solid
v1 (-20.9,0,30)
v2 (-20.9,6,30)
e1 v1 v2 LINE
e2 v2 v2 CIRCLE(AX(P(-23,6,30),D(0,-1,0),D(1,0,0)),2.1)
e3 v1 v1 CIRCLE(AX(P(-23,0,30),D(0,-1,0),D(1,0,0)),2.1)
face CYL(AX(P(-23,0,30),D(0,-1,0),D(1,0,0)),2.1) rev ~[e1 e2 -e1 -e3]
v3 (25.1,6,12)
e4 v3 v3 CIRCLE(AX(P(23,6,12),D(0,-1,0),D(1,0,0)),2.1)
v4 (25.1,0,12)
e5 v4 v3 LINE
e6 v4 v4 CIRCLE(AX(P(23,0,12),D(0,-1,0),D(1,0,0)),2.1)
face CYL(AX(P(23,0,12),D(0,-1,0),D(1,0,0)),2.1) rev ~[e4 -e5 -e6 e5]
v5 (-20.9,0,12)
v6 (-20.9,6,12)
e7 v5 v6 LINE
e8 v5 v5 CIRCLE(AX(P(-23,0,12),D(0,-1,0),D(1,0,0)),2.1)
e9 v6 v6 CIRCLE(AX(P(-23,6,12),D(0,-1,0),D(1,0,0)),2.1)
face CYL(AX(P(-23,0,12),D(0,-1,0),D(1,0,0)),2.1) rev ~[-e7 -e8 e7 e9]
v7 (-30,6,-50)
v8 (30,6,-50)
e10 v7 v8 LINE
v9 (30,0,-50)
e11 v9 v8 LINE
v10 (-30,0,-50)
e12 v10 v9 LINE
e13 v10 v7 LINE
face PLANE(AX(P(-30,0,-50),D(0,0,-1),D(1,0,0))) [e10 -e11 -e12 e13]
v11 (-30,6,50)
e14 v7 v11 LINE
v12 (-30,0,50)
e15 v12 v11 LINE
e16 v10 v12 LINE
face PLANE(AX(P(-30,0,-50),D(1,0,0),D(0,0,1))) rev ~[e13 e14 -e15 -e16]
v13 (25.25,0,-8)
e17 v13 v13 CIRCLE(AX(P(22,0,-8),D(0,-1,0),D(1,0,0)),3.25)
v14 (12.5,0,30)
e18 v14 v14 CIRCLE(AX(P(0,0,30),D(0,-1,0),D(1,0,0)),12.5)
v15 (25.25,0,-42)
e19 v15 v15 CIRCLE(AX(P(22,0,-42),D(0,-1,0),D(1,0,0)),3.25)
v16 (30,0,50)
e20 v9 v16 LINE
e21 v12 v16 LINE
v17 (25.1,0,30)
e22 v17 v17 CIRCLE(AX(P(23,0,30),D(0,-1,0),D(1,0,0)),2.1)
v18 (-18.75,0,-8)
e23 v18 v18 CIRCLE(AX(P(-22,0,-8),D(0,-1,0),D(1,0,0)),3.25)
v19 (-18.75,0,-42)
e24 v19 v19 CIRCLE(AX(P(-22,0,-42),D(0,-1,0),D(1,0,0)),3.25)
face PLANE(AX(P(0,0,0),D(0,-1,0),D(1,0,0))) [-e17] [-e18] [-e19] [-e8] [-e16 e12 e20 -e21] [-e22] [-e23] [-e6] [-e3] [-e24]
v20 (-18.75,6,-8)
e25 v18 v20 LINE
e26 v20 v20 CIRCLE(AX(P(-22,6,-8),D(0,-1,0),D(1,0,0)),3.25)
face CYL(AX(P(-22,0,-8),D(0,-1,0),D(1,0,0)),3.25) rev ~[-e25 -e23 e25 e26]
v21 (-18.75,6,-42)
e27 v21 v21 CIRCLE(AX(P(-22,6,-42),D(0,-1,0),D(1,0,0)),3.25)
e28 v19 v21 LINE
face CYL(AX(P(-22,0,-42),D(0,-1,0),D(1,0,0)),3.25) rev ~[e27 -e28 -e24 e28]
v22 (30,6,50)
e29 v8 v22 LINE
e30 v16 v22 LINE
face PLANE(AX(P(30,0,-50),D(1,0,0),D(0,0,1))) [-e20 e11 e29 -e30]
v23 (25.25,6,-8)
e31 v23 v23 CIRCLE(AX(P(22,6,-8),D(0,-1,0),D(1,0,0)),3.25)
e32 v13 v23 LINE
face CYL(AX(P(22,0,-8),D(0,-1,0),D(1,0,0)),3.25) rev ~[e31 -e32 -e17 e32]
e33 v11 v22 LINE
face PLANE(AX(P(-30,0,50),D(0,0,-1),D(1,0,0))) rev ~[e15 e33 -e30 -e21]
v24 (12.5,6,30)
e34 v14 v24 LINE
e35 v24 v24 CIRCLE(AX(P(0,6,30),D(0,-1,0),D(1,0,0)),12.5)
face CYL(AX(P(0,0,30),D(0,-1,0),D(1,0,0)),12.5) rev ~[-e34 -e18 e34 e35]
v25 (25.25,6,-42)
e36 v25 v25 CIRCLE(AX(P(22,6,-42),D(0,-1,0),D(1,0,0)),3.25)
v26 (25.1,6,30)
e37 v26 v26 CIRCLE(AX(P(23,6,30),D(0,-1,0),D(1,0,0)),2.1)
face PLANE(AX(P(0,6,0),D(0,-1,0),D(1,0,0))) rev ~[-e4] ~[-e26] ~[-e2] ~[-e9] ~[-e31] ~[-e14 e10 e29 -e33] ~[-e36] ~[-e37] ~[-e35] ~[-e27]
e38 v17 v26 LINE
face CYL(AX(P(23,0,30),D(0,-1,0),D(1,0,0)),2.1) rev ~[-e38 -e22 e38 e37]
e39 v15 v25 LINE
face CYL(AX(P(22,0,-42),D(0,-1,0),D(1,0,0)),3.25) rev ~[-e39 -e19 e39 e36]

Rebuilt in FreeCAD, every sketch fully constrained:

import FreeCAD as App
import Part
import Sketcher
from FreeCAD import Vector


def add_polygon(sketch, points):
    """Adds a closed chain of lines whose ends are joined by coincident constraints."""
    first, n = sketch.GeometryCount, len(points)
    for a, b in zip(points, points[1:] + points[:1]):
        sketch.addGeometry(Part.LineSegment(App.Vector(*a, 0), App.Vector(*b, 0)), False)
    for i in range(n):
        sketch.addConstraint(Sketcher.Constraint("Coincident", first + i, 2, first + (i + 1) % n, 1))

doc = App.newDocument("Part")
body = doc.addObject("PartDesign::Body", "Body")

# Sketch on XZ plane
sketch1 = doc.addObject("Sketcher::SketchObject", "Sketch")
body.addObject(sketch1)
sketch1.AttachmentSupport = (doc.XZ_Plane, [""])
sketch1.MapMode = "FlatFace"
add_polygon(sketch1, [(-30, 50), (-30, -50), (30, -50), (30, 50)])  # lines 0-3
sketch1.addGeometry(Part.Circle(Vector(-22, -42, 0), Vector(0, 0, 1), 3.2), False)  # 4
sketch1.addGeometry(Part.Circle(Vector(-22, -8, 0), Vector(0, 0, 1), 3.2), False)  # 5
sketch1.addGeometry(Part.Circle(Vector(22, -42, 0), Vector(0, 0, 1), 3.2), False)  # 6
sketch1.addGeometry(Part.Circle(Vector(22, -8, 0), Vector(0, 0, 1), 3.2), False)  # 7
sketch1.addGeometry(Part.Circle(Vector(-23, 12, 0), Vector(0, 0, 1), 2.1), False)  # 8
sketch1.addGeometry(Part.Circle(Vector(-23, 30, 0), Vector(0, 0, 1), 2.1), False)  # 9
sketch1.addGeometry(Part.Circle(Vector(23, 12, 0), Vector(0, 0, 1), 2.1), False)  # 10
sketch1.addGeometry(Part.Circle(Vector(0, 30, 0), Vector(0, 0, 1), 12.5), False)  # 11
sketch1.addGeometry(Part.Circle(Vector(23, 30, 0), Vector(0, 0, 1), 2.1), False)  # 12
sketch1.addConstraint(Sketcher.Constraint("Vertical", 0))
sketch1.addConstraint(Sketcher.Constraint("Horizontal", 1))
sketch1.addConstraint(Sketcher.Constraint("Vertical", 2))
sketch1.addConstraint(Sketcher.Constraint("Horizontal", 3))
sketch1.addConstraint(Sketcher.Constraint("Equal", 4, 5))
sketch1.addConstraint(Sketcher.Constraint("Equal", 5, 6))
sketch1.addConstraint(Sketcher.Constraint("Equal", 6, 7))
sketch1.addConstraint(Sketcher.Constraint("Equal", 8, 9))
sketch1.addConstraint(Sketcher.Constraint("Equal", 9, 10))
sketch1.addConstraint(Sketcher.Constraint("Equal", 10, 12))
sketch1.addConstraint(Sketcher.Constraint("Symmetric", 0, 2, 2, 2, -1, 1))
sketch1.addConstraint(Sketcher.Constraint("Symmetric", 4, 3, 6, 3, -2))
sketch1.addConstraint(Sketcher.Constraint("Symmetric", 5, 3, 7, 3, -2))
sketch1.addConstraint(Sketcher.Constraint("Symmetric", 8, 3, 10, 3, -2))
sketch1.addConstraint(Sketcher.Constraint("Symmetric", 9, 3, 12, 3, -2))
sketch1.addConstraint(Sketcher.Constraint("PointOnObject", 11, 3, -2))
sketch1.addConstraint(Sketcher.Constraint("Horizontal", 9, 3, 11, 3))
sketch1.addConstraint(Sketcher.Constraint("Vertical", 4, 3, 5, 3))
sketch1.addConstraint(Sketcher.Constraint("Vertical", 8, 3, 9, 3))
sketch1.addConstraint(Sketcher.Constraint("Diameter", 11, 25.0))
sketch1.addConstraint(Sketcher.Constraint("Diameter", 4, 6.5))
sketch1.addConstraint(Sketcher.Constraint("Diameter", 8, 4.2))
sketch1.addConstraint(Sketcher.Constraint("DistanceX", 1, 1, 1, 2, 60.0))
sketch1.addConstraint(Sketcher.Constraint("DistanceY", 0, 2, 0, 1, 100.0))
sketch1.addConstraint(Sketcher.Constraint("DistanceX", 4, 3, -1, 1, 22.0))
sketch1.addConstraint(Sketcher.Constraint("DistanceY", 4, 3, -1, 1, 42.0))
sketch1.addConstraint(Sketcher.Constraint("DistanceY", 5, 3, -1, 1, 8.0))
sketch1.addConstraint(Sketcher.Constraint("DistanceX", 8, 3, -1, 1, 23.0))
sketch1.addConstraint(Sketcher.Constraint("DistanceY", -1, 1, 8, 3, 12.0))
sketch1.addConstraint(Sketcher.Constraint("DistanceY", -1, 1, 9, 3, 30.0))
pad1 = doc.addObject("PartDesign::Pad", "Pad")
body.addObject(pad1)
pad1.Profile = sketch1
pad1.Length = 6
pad1.Reversed = True

doc.recompute()
